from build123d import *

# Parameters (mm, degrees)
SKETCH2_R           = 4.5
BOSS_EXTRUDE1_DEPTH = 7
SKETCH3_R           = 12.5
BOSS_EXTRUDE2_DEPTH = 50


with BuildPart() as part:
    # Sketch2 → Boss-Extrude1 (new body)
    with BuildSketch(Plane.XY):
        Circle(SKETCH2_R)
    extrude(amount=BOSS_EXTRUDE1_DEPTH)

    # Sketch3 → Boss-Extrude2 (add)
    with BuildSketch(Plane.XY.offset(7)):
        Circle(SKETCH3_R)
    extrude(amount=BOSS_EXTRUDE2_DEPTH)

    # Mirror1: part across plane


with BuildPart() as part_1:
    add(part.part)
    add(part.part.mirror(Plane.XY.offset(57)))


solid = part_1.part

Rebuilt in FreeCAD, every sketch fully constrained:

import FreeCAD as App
import Part
import Sketcher

V = App.Vector
Q = App.Units.Quantity

doc = App.newDocument("Part")
params = doc.addObject("Spreadsheet::Sheet", "Params")
for row, (alias, value) in enumerate([
    ("sketch1_diameter", "9 mm"),
    ("pad1_length", "7 mm"),
    ("sketch2_diameter", "25 mm"),
    ("pad2_length", "50 mm"),
], start=1):
    params.set(f"A{row}", alias)
    params.set(f"B{row}", "=" + value)
    params.setAlias(f"B{row}", alias)

body = doc.addObject("PartDesign::Body", "Body")

sketch1 = body.newObject("Sketcher::SketchObject", "Sketch")
sketch1.AttachmentSupport = (doc.getObject("XY_Plane"), [""])
sketch1.MapMode = "FlatFace"
sketch1.addGeometry(Part.Circle(V(0, 0, 0), V(0, 0, 1), 4.5), False)
sketch1.addConstraint([
    Sketcher.Constraint("Coincident", 0, 3, -1, 1),
    Sketcher.Constraint("Diameter", 0, Q("9 mm")),
])
sketch1.setExpression("Constraints[1]", "Params.sketch1_diameter")
pad1 = body.newObject("PartDesign::Pad", "Pad")
pad1.Profile = sketch1
pad1.setExpression("Length", "Params.pad1_length")

sketch2 = body.newObject("Sketcher::SketchObject", "Sketch001")
sketch2.AttachmentSupport = (doc.getObject("XY_Plane"), [""])
sketch2.MapMode = "FlatFace"
sketch2.AttachmentOffset = App.Placement(V(0, 0, 7), App.Rotation())
sketch2.addGeometry(Part.Circle(V(0, 0, 0), V(0, 0, 1), 12), False)
sketch2.addConstraint([
    Sketcher.Constraint("Coincident", 0, 3, -1, 1),
    Sketcher.Constraint("Diameter", 0, Q("25 mm")),
])
sketch2.setExpression("Constraints[1]", "Params.sketch2_diameter")
pad2 = body.newObject("PartDesign::Pad", "Pad001")
pad2.Profile = sketch2
pad2.setExpression("Length", "Params.pad2_length")
body2 = doc.addObject("PartDesign::Body", "Body001")
doc.recompute()

body2.BaseFeature = body
doc.recompute()

mirroring = doc.addObject("Part::Mirroring", "Mirroring")
mirroring.Source = body
mirroring.Base = V(0, 0, 57)
mirroring.Normal = V(0, 0, 1)
body3 = doc.addObject("PartDesign::Body", "Body002")
body3.BaseFeature = mirroring
boolean = body2.newObject("PartDesign::Boolean", "Boolean")
boolean.Type = "Fuse"
boolean.addObjects([body3])
doc.recompute()
mirroring.Visibility = False

doc.recompute()
